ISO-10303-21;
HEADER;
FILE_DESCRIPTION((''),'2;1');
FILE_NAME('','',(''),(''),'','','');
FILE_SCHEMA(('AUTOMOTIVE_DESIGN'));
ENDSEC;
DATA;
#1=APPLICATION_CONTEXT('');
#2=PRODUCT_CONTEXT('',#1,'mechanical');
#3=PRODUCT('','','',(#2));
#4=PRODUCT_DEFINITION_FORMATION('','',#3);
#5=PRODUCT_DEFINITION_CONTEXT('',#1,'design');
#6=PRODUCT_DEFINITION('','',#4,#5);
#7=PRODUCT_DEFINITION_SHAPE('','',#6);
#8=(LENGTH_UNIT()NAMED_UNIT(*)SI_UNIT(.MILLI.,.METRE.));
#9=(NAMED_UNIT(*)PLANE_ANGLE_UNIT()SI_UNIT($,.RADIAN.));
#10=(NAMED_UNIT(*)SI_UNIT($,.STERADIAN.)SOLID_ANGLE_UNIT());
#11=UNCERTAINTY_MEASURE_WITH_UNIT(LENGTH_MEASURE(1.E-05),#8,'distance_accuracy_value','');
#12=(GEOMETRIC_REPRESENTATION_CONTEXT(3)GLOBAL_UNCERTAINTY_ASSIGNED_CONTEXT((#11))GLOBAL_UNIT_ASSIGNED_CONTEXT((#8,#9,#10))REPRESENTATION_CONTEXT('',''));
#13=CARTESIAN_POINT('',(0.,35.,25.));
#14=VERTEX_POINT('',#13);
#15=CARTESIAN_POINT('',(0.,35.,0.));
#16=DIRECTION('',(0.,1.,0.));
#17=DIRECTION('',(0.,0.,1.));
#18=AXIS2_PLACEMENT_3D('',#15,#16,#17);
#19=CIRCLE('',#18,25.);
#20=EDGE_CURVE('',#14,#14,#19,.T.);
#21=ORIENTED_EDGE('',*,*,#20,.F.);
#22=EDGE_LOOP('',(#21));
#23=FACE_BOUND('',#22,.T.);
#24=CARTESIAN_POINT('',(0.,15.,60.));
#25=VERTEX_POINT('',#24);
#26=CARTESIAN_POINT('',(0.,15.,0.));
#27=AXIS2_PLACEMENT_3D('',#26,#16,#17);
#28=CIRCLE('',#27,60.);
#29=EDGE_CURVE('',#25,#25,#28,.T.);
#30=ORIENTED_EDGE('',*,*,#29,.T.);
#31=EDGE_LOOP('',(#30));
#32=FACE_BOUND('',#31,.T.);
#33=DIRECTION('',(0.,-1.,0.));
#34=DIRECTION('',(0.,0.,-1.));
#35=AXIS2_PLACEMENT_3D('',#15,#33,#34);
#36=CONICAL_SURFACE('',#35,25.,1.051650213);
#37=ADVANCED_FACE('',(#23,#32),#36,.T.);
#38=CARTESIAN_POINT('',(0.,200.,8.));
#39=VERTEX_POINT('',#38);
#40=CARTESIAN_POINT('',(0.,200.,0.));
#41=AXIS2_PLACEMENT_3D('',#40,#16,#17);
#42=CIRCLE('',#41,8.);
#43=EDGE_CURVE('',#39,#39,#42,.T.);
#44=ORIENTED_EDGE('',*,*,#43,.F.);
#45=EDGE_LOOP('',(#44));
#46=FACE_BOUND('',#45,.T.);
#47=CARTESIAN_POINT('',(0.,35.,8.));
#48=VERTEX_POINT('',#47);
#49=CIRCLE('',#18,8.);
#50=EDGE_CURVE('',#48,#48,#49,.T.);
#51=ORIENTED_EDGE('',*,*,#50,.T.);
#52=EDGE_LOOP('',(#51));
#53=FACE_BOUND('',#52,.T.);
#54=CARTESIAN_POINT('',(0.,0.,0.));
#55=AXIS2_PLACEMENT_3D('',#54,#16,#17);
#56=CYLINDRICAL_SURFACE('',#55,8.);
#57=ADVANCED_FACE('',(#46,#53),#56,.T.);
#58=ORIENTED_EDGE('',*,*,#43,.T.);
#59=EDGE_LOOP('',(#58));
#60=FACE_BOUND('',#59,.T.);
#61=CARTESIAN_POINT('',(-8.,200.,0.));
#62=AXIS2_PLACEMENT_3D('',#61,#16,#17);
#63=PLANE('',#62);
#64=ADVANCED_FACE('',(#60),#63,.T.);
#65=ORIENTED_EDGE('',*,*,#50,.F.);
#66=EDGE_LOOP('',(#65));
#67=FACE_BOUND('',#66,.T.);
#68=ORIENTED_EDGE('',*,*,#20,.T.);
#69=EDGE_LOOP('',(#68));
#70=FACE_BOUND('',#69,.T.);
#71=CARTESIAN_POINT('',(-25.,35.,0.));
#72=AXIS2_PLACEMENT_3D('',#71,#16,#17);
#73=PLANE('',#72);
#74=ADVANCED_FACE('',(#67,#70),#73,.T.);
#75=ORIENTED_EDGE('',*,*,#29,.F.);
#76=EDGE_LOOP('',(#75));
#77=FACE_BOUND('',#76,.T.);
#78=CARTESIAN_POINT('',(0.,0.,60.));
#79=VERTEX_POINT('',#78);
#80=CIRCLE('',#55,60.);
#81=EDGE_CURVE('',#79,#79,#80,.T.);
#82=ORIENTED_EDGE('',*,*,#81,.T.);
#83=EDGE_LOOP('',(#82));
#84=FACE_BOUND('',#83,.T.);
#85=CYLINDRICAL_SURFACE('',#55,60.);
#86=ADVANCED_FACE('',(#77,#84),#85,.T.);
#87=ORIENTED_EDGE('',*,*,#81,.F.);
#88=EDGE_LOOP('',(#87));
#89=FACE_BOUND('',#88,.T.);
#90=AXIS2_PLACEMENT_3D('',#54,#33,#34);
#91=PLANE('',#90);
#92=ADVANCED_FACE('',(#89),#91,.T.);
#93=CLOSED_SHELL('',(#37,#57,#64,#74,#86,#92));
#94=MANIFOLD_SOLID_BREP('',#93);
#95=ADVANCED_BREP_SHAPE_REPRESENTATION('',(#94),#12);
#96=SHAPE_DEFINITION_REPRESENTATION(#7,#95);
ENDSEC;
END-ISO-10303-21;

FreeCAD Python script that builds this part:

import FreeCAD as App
import Part
import Sketcher

V = App.Vector


def add_polygon(sketch, points):
    """Adds a closed chain of lines whose ends are joined by coincident constraints."""
    first, n = sketch.GeometryCount, len(points)
    for a, b in zip(points, points[1:] + points[:1]):
        sketch.addGeometry(Part.LineSegment(App.Vector(*a, 0), App.Vector(*b, 0)), False)
    for i in range(n):
        sketch.addConstraint(Sketcher.Constraint("Coincident", first + i, 2, first + (i + 1) % n, 1))

doc = App.newDocument("Part")
body = doc.addObject("PartDesign::Body", "Body")

# Sketch on XY plane
sketch1 = body.newObject("Sketcher::SketchObject", "Sketch")
sketch1.AttachmentSupport = (doc.getObject("XY_Plane"), [""])
sketch1.MapMode = "FlatFace"
add_polygon(sketch1, [(-60, 0), (0, 0), (0, 200), (-8, 200), (-8, 35), (-25, 35), (-60, 15)])  # lines 0-6
sketch1.addConstraint([
    Sketcher.Constraint("Horizontal", 0),
    Sketcher.Constraint("Vertical", 1),
    Sketcher.Constraint("Horizontal", 2),
    Sketcher.Constraint("Vertical", 3),
    Sketcher.Constraint("Horizontal", 4),
    Sketcher.Constraint("Vertical", 6),
    Sketcher.Constraint("Coincident", 0, 2, -1, 1),
    Sketcher.Constraint("DistanceX", 0, 1, 0, 2, 60.0),
    Sketcher.Constraint("DistanceX", 2, 2, 2, 1, 8.0),
    Sketcher.Constraint("DistanceX", 4, 2, 4, 1, 17.0),
    Sketcher.Constraint("DistanceY", 1, 1, 1, 2, 200.0),
    Sketcher.Constraint("DistanceY", 3, 2, 3, 1, 165.0),
    Sketcher.Constraint("DistanceY", 6, 2, 6, 1, 15.0),
])
revolution = body.newObject("PartDesign::Revolution", "Revolution")
revolution.Profile = sketch1
revolution.ReferenceAxis = (sketch1, ["V_Axis"])
revolution.Angle = 360

doc.recompute()
